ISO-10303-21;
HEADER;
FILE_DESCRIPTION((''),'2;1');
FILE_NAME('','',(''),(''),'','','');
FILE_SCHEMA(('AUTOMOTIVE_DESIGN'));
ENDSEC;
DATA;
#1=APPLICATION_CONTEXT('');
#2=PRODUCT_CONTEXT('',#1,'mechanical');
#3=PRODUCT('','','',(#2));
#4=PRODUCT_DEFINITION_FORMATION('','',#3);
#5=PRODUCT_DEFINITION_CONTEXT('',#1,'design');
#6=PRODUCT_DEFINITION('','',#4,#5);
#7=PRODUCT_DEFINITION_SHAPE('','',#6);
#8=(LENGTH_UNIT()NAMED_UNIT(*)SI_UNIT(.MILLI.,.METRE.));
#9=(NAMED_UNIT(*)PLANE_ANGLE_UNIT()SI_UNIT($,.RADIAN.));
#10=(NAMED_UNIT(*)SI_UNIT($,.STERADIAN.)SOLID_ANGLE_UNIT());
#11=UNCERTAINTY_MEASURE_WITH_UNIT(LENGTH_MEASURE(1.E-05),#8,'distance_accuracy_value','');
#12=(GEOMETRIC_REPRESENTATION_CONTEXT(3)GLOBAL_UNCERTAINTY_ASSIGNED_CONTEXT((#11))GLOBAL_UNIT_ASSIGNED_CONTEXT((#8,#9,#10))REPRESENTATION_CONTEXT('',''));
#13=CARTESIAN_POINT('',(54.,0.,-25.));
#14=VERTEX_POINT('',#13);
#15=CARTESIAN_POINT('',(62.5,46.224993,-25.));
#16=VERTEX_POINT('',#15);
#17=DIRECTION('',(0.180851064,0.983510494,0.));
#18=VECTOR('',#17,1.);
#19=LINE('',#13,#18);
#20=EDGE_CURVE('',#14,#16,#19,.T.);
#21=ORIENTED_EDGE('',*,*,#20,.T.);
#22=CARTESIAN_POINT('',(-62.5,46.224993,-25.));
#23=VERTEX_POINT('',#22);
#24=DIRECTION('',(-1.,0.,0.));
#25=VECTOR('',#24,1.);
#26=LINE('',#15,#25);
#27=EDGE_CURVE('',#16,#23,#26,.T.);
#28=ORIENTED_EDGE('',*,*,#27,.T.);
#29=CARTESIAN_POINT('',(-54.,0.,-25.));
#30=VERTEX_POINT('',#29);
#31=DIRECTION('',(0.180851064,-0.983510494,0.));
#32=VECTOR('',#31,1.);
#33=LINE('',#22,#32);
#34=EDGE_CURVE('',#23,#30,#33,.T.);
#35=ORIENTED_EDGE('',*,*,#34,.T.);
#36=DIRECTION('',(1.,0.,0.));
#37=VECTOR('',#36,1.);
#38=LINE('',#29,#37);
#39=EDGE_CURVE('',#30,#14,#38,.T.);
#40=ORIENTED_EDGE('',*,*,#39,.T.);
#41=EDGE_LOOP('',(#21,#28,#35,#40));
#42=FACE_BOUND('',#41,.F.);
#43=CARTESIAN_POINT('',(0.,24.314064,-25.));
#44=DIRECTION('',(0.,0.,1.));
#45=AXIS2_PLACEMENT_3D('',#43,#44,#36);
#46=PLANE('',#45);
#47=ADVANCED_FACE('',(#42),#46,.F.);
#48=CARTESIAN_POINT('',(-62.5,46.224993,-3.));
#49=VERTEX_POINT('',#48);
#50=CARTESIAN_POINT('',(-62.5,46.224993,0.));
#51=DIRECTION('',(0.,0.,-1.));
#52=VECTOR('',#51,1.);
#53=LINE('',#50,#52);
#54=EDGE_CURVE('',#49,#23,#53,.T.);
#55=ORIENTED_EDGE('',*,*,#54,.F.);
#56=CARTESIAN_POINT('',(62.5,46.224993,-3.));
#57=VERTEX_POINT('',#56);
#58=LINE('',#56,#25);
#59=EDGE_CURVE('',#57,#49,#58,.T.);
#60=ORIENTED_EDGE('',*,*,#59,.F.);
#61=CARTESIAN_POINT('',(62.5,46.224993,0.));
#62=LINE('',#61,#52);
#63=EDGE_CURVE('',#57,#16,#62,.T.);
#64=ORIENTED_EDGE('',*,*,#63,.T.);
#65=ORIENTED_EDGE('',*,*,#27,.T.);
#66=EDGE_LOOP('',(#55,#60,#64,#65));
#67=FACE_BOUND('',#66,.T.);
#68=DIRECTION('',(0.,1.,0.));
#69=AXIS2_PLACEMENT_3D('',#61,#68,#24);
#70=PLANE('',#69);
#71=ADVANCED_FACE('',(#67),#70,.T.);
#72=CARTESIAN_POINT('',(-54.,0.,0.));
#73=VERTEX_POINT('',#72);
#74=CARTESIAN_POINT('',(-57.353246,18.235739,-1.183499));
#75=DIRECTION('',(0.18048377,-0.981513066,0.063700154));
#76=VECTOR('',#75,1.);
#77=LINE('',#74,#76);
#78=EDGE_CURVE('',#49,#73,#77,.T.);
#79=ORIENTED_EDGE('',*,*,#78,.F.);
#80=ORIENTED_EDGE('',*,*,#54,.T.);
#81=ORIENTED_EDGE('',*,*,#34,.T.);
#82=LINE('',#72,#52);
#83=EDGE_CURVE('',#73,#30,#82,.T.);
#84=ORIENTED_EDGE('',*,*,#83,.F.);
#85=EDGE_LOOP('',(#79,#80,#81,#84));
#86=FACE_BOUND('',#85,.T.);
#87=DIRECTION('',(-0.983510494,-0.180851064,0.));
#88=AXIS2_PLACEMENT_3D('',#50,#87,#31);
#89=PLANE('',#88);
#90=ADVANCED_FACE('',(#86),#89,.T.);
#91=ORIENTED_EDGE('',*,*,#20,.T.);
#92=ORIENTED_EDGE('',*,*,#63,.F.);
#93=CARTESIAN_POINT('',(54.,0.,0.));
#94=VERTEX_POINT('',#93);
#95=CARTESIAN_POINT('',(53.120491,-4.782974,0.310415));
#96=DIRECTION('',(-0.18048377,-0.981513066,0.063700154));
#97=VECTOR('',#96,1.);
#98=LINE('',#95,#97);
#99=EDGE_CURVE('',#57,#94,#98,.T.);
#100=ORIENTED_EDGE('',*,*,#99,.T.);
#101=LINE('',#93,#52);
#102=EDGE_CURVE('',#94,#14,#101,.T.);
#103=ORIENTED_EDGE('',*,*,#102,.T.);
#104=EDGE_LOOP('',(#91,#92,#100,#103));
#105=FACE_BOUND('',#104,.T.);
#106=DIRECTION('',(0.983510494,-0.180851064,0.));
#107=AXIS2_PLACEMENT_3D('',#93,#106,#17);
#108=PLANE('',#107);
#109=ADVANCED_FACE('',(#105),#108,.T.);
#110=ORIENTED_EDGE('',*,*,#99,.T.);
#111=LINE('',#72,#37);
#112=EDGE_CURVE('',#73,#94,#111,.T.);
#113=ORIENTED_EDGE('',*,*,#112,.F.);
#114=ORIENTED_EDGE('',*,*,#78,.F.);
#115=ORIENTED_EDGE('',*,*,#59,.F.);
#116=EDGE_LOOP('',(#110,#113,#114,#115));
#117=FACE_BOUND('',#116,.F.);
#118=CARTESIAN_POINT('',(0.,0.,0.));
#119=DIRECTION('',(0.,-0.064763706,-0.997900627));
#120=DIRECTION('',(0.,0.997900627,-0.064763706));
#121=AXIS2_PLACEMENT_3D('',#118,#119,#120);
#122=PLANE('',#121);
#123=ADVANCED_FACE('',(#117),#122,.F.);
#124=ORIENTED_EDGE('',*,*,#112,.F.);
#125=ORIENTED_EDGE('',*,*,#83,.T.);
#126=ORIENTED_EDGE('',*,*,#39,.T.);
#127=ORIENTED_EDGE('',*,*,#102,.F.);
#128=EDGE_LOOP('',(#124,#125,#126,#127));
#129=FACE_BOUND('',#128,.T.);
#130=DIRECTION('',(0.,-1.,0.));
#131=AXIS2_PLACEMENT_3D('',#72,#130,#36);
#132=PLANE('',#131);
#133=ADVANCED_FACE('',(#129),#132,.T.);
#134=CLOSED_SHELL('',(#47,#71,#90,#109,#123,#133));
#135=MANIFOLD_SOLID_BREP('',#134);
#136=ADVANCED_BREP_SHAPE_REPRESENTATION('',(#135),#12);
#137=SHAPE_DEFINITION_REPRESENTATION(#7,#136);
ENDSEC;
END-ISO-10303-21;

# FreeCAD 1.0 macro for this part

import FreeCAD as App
import Part
import Sketcher

doc = App.newDocument("Part")
body = doc.addObject("PartDesign::Body", "Body")

# Sketch on XY plane
sketch1 = doc.addObject("Sketcher::SketchObject", "Sketch")
body.addObject(sketch1)
sketch1.AttachmentSupport = (doc.XY_Plane, [""])
sketch1.MapMode = "FlatFace"
sketch1.addGeometry([
    Part.LineSegment(App.Vector(-62, 46, 0), App.Vector(-54, 0, 0)),
    Part.LineSegment(App.Vector(-54, 0, 0), App.Vector(54, 0, 0)),
    Part.LineSegment(App.Vector(54, 0, 0), App.Vector(62, 46, 0)),
    Part.LineSegment(App.Vector(62, 46, 0), App.Vector(-62, 46, 0)),
], False)
sketch1.addConstraint([
    Sketcher.Constraint("Coincident", 0, 2, 1, 1),
    Sketcher.Constraint("Coincident", 1, 2, 2, 1),
    Sketcher.Constraint("Coincident", 2, 2, 3, 1),
    Sketcher.Constraint("Coincident", 3, 2, 0, 1),
    Sketcher.Constraint("Horizontal", 1),
    Sketcher.Constraint("Horizontal", 3),
    Sketcher.Constraint("Symmetric", 0, 2, 1, 2, -1, 1),
    Sketcher.Constraint("Equal", 0, 2),
    Sketcher.Constraint("DistanceX", 1, 1, 1, 2, 108.0),
    Sketcher.Constraint("DistanceX", 3, 2, 3, 1, 125.0),
    Sketcher.Constraint("Distance", 0, 47.0),
])
pad1 = doc.addObject("PartDesign::Pad", "Pad")
body.addObject(pad1)
pad1.Profile = sketch1
pad1.Length = 25
pad1.Reversed = True

# Sketch on YZ plane
sketch2 = doc.addObject("Sketcher::SketchObject", "Sketch001")
body.addObject(sketch2)
sketch2.AttachmentSupport = (doc.YZ_Plane, [""])
sketch2.MapMode = "FlatFace"
sketch2.addGeometry([
    Part.LineSegment(App.Vector(0, 0, 0), App.Vector(46.2, -3, 0)),
    Part.LineSegment(App.Vector(46.2, -3, 0), App.Vector(46.2, 0, 0)),
    Part.LineSegment(App.Vector(46.2, 0, 0), App.Vector(0, 0, 0)),
], False)
sketch2.addConstraint([
    Sketcher.Constraint("Coincident", 0, 2, 1, 1),
    Sketcher.Constraint("Coincident", 1, 2, 2, 1),
    Sketcher.Constraint("Coincident", 2, 2, 0, 1),
    Sketcher.Constraint("Vertical", 1),
    Sketcher.Constraint("Horizontal", 2),
    Sketcher.Constraint("Coincident", 2, 2, -1, 1),
    Sketcher.Constraint("DistanceY", 1, 1, 1, 2, 3.0),
    Sketcher.Constraint("Distance", 0, 46.322241),
])
pocket1 = doc.addObject("PartDesign::Pocket", "Pocket")
body.addObject(pocket1)
pocket1.Profile = sketch2
pocket1.Type = "ThroughAll"
pocket1.Midplane = True

doc.recompute()
